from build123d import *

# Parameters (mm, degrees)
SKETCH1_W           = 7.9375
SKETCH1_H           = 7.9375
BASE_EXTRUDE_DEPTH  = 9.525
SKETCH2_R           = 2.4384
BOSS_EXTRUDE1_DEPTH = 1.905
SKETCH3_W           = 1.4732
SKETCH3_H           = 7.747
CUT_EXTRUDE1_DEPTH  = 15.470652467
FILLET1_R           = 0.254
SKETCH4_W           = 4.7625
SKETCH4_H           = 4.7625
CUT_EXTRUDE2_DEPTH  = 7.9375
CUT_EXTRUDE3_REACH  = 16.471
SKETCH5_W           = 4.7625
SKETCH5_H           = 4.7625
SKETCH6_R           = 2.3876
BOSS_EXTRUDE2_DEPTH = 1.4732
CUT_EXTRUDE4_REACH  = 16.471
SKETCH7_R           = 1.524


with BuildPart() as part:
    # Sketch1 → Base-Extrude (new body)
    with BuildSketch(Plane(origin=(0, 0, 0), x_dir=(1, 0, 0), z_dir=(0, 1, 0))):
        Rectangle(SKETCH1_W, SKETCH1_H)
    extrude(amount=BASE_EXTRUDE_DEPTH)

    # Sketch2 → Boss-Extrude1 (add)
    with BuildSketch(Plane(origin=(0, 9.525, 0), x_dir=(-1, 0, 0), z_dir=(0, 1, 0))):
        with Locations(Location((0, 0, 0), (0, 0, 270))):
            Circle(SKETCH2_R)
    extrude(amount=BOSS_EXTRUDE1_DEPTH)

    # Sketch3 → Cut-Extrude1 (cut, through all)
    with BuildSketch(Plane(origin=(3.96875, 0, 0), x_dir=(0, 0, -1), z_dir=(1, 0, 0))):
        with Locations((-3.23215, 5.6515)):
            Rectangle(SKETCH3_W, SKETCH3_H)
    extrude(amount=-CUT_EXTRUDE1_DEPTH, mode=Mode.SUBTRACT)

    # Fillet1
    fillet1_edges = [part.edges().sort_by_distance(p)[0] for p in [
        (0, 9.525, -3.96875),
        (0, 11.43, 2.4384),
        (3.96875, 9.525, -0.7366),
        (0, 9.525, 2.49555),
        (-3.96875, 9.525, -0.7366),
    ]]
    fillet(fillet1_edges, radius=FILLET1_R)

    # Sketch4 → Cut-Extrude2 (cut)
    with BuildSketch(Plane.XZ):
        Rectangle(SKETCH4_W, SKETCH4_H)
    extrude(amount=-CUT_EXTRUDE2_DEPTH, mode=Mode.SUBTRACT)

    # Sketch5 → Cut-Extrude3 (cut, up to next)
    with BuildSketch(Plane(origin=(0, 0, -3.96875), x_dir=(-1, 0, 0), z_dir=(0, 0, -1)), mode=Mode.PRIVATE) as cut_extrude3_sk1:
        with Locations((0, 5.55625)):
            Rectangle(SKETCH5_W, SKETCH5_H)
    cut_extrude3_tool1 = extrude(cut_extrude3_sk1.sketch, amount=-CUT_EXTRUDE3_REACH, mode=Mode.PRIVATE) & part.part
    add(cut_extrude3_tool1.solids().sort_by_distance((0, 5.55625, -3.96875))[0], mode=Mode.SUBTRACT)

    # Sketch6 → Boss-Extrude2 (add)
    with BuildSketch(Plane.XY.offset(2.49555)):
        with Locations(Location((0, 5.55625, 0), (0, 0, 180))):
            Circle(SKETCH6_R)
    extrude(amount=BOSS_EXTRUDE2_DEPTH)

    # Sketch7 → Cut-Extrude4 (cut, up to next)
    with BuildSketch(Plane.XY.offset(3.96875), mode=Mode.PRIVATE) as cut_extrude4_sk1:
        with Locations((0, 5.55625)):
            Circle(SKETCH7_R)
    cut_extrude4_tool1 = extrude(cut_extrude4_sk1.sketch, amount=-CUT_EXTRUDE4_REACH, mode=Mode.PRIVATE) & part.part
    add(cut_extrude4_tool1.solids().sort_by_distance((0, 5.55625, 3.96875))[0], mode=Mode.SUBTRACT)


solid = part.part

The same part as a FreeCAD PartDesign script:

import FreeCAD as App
import Part
import Sketcher

V = App.Vector
Q = App.Units.Quantity


def edges_at(feature, points):
    """Names of the edges that pass closest to the given points."""
    edges = feature.Shape.Edges
    near = lambda p: min(range(len(edges)), key=lambda i: edges[i].distToShape(Part.Vertex(*p))[0])
    return sorted({f"Edge{near(p) + 1}" for p in points})


def add_polygon(sketch, points):
    """Adds a closed chain of lines whose ends are joined by coincident constraints."""
    first, n = sketch.GeometryCount, len(points)
    for a, b in zip(points, points[1:] + points[:1]):
        sketch.addGeometry(Part.LineSegment(App.Vector(*a, 0), App.Vector(*b, 0)), False)
    for i in range(n):
        sketch.addConstraint(Sketcher.Constraint("Coincident", first + i, 2, first + (i + 1) % n, 1))

doc = App.newDocument("Part")
params = doc.addObject("Spreadsheet::Sheet", "Params")
for row, (alias, value) in enumerate([
    ("sketch1_width", "0.3125 in"),
    ("pad1_length", "0.375 in"),
    ("sketch2_diameter", "0.192 in"),
    ("pad2_length", "0.075 in"),
    ("sketch3_width", "0.305 in"),
    ("sketch3_height", "0.058 in"),
    ("fillet_radius", "0.01 in"),
    ("sketch4_width", "0.1875 in"),
    ("pocket2_length", "0.3125 in"),
    ("sketch5_width", "0.1875 in"),
    ("sketch6_diameter", "0.188 in"),
    ("pad3_length", "0.058 in"),
    ("sketch7_diameter", "0.12 in"),
], start=1):
    params.set(f"A{row}", alias)
    params.set(f"B{row}", "=" + value)
    params.setAlias(f"B{row}", alias)

body = doc.addObject("PartDesign::Body", "Body")

# Sketch on XZ plane
sketch1 = body.newObject("Sketcher::SketchObject", "Sketch")
sketch1.AttachmentSupport = (doc.getObject("XZ_Plane"), [""])
sketch1.MapMode = "FlatFace"
add_polygon(sketch1, [(-4, -4), (-4, 4), (4, 4), (4, -4)])  # lines 0-3
sketch1.addConstraint(Sketcher.Constraint("Vertical", 0))
sketch1.addConstraint(Sketcher.Constraint("Horizontal", 1))
sketch1.addConstraint(Sketcher.Constraint("Vertical", 2))
sketch1.addConstraint(Sketcher.Constraint("Horizontal", 3))
sketch1.addConstraint(Sketcher.Constraint("Symmetric", 0, 2, 2, 2, -1, 1))
sketch1.addConstraint(Sketcher.Constraint("Equal", 3, 0))
sketch1.addConstraint(Sketcher.Constraint("DistanceX", 1, 1, 1, 2, Q("0.3125 in")))
sketch1.setExpression("Constraints[10]", "Params.sketch1_width")
pad1 = body.newObject("PartDesign::Pad", "Pad")
pad1.Profile = sketch1
pad1.setExpression("Length", "Params.pad1_length")
pad1.Reversed = True

# Sketch on XZ plane
sketch2 = body.newObject("Sketcher::SketchObject", "Sketch001")
sketch2.AttachmentSupport = (doc.getObject("XZ_Plane"), [""])
sketch2.MapMode = "FlatFace"
sketch2.AttachmentOffset = App.Placement(V(0, 0, -0.375 * 25.4), App.Rotation())
sketch2.addGeometry(Part.Circle(V(0, 0, 0), V(0, 0, 1), 2.4), False)
sketch2.addConstraint(Sketcher.Constraint("Coincident", 0, 3, -1, 1))
sketch2.addConstraint(Sketcher.Constraint("Diameter", 0, Q("0.192 in")))
sketch2.setExpression("Constraints[1]", "Params.sketch2_diameter")
pad2 = body.newObject("PartDesign::Pad", "Pad001")
pad2.Profile = sketch2
pad2.setExpression("Length", "Params.pad2_length")
pad2.Reversed = True

# Sketch on YZ plane
sketch3 = body.newObject("Sketcher::SketchObject", "Sketch002")
sketch3.AttachmentSupport = (doc.getObject("YZ_Plane"), [""])
sketch3.MapMode = "FlatFace"
sketch3.AttachmentOffset = App.Placement(V(0, 0, 0.15625 * 25.4), App.Rotation())
add_polygon(sketch3, [(9.5, 4), (1.8, 4), (1.8, 2.5), (9.5, 2.5)])  # lines 0-3
sketch3.addConstraint(Sketcher.Constraint("Horizontal", 0))
sketch3.addConstraint(Sketcher.Constraint("Vertical", 1))
sketch3.addConstraint(Sketcher.Constraint("Horizontal", 2))
sketch3.addConstraint(Sketcher.Constraint("Vertical", 3))
sketch3.addConstraint(Sketcher.Constraint("DistanceX", 0, 2, 0, 1, Q("0.305 in")))
sketch3.addConstraint(Sketcher.Constraint("DistanceY", 1, 2, 1, 1, Q("0.058 in")))
sketch3.addConstraint(Sketcher.Constraint("DistanceX", -1, 1, 0, 2, Q("0.07 in")))
sketch3.addConstraint(Sketcher.Constraint("DistanceY", -1, 1, 0, 2, Q("0.15625 in")))
sketch3.setExpression("Constraints[8]", "Params.sketch3_width")
sketch3.setExpression("Constraints[9]", "Params.sketch3_height")
pocket1 = body.newObject("PartDesign::Pocket", "Pocket")
pocket1.Profile = sketch3
pocket1.Type = "ThroughAll"
doc.recompute()

fillet = body.newObject("PartDesign::Fillet", "Fillet")
fillet.Base = (pocket1, edges_at(pocket1, [
    (0, 9.525, -3.969),
    (0, 11.43, 2.438),
    (3.969, 9.525, -0.737),
    (0, 9.525, 2.496),
    (-3.969, 9.525, -0.737),
]))
fillet.setExpression("Radius", "Params.fillet_radius")

# Sketch on XZ plane
sketch4 = body.newObject("Sketcher::SketchObject", "Sketch003")
sketch4.AttachmentSupport = (doc.getObject("XZ_Plane"), [""])
sketch4.MapMode = "FlatFace"
add_polygon(sketch4, [(-2.4, 2.4), (-2.4, -2.4), (2.4, -2.4), (2.4, 2.4)])  # lines 0-3
sketch4.addConstraint(Sketcher.Constraint("Vertical", 0))
sketch4.addConstraint(Sketcher.Constraint("Horizontal", 1))
sketch4.addConstraint(Sketcher.Constraint("Vertical", 2))
sketch4.addConstraint(Sketcher.Constraint("Horizontal", 3))
sketch4.addConstraint(Sketcher.Constraint("Symmetric", 0, 2, 2, 2, -1, 1))
sketch4.addConstraint(Sketcher.Constraint("Equal", 3, 0))
sketch4.addConstraint(Sketcher.Constraint("DistanceX", 1, 1, 1, 2, Q("0.1875 in")))
sketch4.setExpression("Constraints[10]", "Params.sketch4_width")
pocket2 = body.newObject("PartDesign::Pocket", "Pocket001")
pocket2.Profile = sketch4
pocket2.setExpression("Length", "Params.pocket2_length")

# Sketch on XY plane
sketch5 = body.newObject("Sketcher::SketchObject", "Sketch004")
sketch5.AttachmentSupport = (doc.getObject("XY_Plane"), [""])
sketch5.MapMode = "FlatFace"
sketch5.AttachmentOffset = App.Placement(V(0, 0, -0.15625 * 25.4), App.Rotation())
add_polygon(sketch5, [(2.4, 7.9), (2.4, 3.2), (-2.4, 3.2), (-2.4, 7.9)])  # lines 0-3
sketch5.addConstraint(Sketcher.Constraint("Vertical", 0))
sketch5.addConstraint(Sketcher.Constraint("Horizontal", 1))
sketch5.addConstraint(Sketcher.Constraint("Vertical", 2))
sketch5.addConstraint(Sketcher.Constraint("Horizontal", 3))
sketch5.addConstraint(Sketcher.Constraint("Equal", 3, 0))
sketch5.addConstraint(Sketcher.Constraint("DistanceX", 1, 2, 1, 1, Q("0.1875 in")))
sketch5.addConstraint(Sketcher.Constraint("DistanceX", -1, 1, 0, 2, Q("0.09375 in")))
sketch5.addConstraint(Sketcher.Constraint("DistanceY", -1, 1, 0, 2, Q("0.125 in")))
sketch5.setExpression("Constraints[9]", "Params.sketch5_width")
pocket3 = body.newObject("PartDesign::Pocket", "Pocket002")
pocket3.Profile = sketch5
pocket3.Type = "UpToFirst"
pocket3.Reversed = True

# Sketch on XY plane
sketch6 = body.newObject("Sketcher::SketchObject", "Sketch005")
sketch6.AttachmentSupport = (doc.getObject("XY_Plane"), [""])
sketch6.MapMode = "FlatFace"
sketch6.AttachmentOffset = App.Placement(V(0, 0, 2.49555), App.Rotation())
sketch6.addGeometry(Part.Circle(V(0, 5.6, 0), V(0, 0, 1), 2.4), False)
sketch6.addConstraint(Sketcher.Constraint("PointOnObject", 0, 3, -2))
sketch6.addConstraint(Sketcher.Constraint("Diameter", 0, Q("0.188 in")))
sketch6.addConstraint(Sketcher.Constraint("DistanceY", -1, 1, 0, 3, Q("0.21875 in")))
sketch6.setExpression("Constraints[1]", "Params.sketch6_diameter")
pad3 = body.newObject("PartDesign::Pad", "Pad002")
pad3.Profile = sketch6
pad3.setExpression("Length", "Params.pad3_length")

# Sketch on XY plane
sketch7 = body.newObject("Sketcher::SketchObject", "Sketch006")
sketch7.AttachmentSupport = (doc.getObject("XY_Plane"), [""])
sketch7.MapMode = "FlatFace"
sketch7.AttachmentOffset = App.Placement(V(0, 0, 0.15625 * 25.4), App.Rotation())
sketch7.addGeometry(Part.Circle(V(0, 5.6, 0), V(0, 0, 1), 1.5), False)
sketch7.addConstraint(Sketcher.Constraint("PointOnObject", 0, 3, -2))
sketch7.addConstraint(Sketcher.Constraint("Diameter", 0, Q("0.12 in")))
sketch7.addConstraint(Sketcher.Constraint("DistanceY", -1, 1, 0, 3, Q("0.21875 in")))
sketch7.setExpression("Constraints[1]", "Params.sketch7_diameter")
pocket4 = body.newObject("PartDesign::Pocket", "Pocket003")
pocket4.Profile = sketch7
pocket4.Type = "UpToFirst"

doc.recompute()
